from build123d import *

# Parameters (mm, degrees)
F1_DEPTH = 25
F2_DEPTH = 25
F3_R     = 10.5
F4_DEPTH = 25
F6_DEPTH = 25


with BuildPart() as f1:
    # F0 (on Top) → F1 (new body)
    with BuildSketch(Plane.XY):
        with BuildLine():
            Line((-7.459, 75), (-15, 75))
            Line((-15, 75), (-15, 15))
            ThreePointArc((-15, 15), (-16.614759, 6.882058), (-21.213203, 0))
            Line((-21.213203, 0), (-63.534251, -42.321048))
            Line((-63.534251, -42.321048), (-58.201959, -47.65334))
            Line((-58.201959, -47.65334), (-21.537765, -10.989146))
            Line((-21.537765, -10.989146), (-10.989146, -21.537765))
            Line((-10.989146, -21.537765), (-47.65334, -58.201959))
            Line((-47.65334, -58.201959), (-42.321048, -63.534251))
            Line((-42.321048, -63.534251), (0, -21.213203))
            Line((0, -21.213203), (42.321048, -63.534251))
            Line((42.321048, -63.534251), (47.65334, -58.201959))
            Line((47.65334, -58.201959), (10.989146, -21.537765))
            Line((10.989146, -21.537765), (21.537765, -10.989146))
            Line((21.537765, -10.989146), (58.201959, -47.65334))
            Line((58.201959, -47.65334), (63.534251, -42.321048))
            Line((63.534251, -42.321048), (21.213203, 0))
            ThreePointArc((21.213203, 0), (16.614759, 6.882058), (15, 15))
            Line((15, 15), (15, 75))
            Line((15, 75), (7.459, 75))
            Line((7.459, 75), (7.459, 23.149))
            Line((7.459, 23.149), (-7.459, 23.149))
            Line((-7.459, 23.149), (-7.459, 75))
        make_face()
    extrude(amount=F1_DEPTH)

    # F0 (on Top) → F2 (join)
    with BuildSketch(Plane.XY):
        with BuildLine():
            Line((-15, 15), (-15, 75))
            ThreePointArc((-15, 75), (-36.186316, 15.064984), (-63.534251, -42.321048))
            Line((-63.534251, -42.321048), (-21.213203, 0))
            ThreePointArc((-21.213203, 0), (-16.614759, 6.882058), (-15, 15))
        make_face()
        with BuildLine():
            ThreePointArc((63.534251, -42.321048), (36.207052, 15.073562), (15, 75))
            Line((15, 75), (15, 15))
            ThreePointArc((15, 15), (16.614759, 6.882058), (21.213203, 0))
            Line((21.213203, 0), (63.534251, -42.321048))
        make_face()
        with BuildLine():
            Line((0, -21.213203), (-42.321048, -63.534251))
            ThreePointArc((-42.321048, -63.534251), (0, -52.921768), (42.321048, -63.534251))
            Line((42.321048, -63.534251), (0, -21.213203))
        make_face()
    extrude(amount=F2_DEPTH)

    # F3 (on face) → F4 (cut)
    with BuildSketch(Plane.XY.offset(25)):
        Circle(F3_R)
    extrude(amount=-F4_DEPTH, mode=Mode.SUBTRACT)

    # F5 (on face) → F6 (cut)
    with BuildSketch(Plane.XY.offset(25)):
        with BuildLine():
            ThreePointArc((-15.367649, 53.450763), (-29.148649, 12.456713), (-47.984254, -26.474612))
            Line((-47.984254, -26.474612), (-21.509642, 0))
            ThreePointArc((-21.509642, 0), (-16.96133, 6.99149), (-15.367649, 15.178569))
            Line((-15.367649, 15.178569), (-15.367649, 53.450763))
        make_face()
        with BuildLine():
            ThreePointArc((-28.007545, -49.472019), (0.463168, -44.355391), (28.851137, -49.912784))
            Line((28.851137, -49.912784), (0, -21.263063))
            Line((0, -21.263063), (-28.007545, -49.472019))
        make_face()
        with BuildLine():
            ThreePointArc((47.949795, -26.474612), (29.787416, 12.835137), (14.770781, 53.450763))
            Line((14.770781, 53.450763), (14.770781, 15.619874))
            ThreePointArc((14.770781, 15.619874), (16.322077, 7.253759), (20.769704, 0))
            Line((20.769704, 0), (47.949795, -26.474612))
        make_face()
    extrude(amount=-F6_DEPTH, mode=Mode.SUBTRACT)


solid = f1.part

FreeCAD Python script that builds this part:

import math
import FreeCAD as App
import Part
import Sketcher
from FreeCAD import Vector
Q = App.Units.Quantity

doc = App.newDocument("Part")
params = doc.addObject("Spreadsheet::Sheet", "Params")
for row, (alias, value) in enumerate([
    ("sketch1_height", "60 mm"),
    ("pad1_length", "25 mm"),
    ("sketch2_height", "60 mm"),
    ("pad2_length", "25 mm"),
    ("sketch3_diameter", "21 mm"),
    ("pocket1_length", "25 mm"),
    ("pocket2_length", "25 mm"),
], start=1):
    params.set(f"A{row}", alias)
    params.set(f"B{row}", "=" + value)
    params.setAlias(f"B{row}", alias)

body = doc.addObject("PartDesign::Body", "Body")

sketch1 = body.newObject("Sketcher::SketchObject", "Sketch")
sketch1.AttachmentSupport = (doc.getObject("XY_Plane"), [""])
sketch1.MapMode = "FlatFace"
sketch1.addGeometry([
    Part.LineSegment(Vector(-7, 75, 0), Vector(-15, 75, 0)),
    Part.LineSegment(Vector(-15, 75, 0), Vector(-15, 15, 0)),
    Part.ArcOfCircle(Part.Circle(Vector(-36, 15, 0), Vector(0, 0, 1), 21), math.radians(-45), math.radians(0)),
    Part.LineSegment(Vector(-21, 0, 0), Vector(-64, -42, 0)),
    Part.LineSegment(Vector(-64, -42, 0), Vector(-58, -48, 0)),
    Part.LineSegment(Vector(-58, -48, 0), Vector(-22, -11, 0)),
    Part.LineSegment(Vector(-22, -11, 0), Vector(-11, -22, 0)),
    Part.LineSegment(Vector(-11, -22, 0), Vector(-48, -58, 0)),
    Part.LineSegment(Vector(-48, -58, 0), Vector(-42, -64, 0)),
    Part.LineSegment(Vector(-42, -64, 0), Vector(0, -21, 0)),
    Part.LineSegment(Vector(0, -21, 0), Vector(42, -64, 0)),
    Part.LineSegment(Vector(42, -64, 0), Vector(48, -58, 0)),
    Part.LineSegment(Vector(48, -58, 0), Vector(11, -22, 0)),
    Part.LineSegment(Vector(11, -22, 0), Vector(22, -11, 0)),
    Part.LineSegment(Vector(22, -11, 0), Vector(58, -48, 0)),
    Part.LineSegment(Vector(58, -48, 0), Vector(64, -42, 0)),
    Part.LineSegment(Vector(64, -42, 0), Vector(21, 0, 0)),
    Part.ArcOfCircle(Part.Circle(Vector(36, 15, 0), Vector(0, 0, 1), 21), math.radians(180), math.radians(225)),
    Part.LineSegment(Vector(15, 15, 0), Vector(15, 75, 0)),
    Part.LineSegment(Vector(15, 75, 0), Vector(7, 75, 0)),
    Part.LineSegment(Vector(7, 75, 0), Vector(7, 23, 0)),
    Part.LineSegment(Vector(7, 23, 0), Vector(-7, 23, 0)),
    Part.LineSegment(Vector(-7, 23, 0), Vector(-7, 75, 0)),
], False)
sketch1.addConstraint([
    Sketcher.Constraint("Coincident", 0, 2, 1, 1),
    Sketcher.Constraint("Tangent", 1, 2, 2, 2),
    Sketcher.Constraint("Tangent", 2, 1, 3, 1),
    Sketcher.Constraint("Coincident", 3, 2, 4, 1),
    Sketcher.Constraint("Coincident", 4, 2, 5, 1),
    Sketcher.Constraint("Coincident", 5, 2, 6, 1),
    Sketcher.Constraint("Coincident", 6, 2, 7, 1),
    Sketcher.Constraint("Coincident", 7, 2, 8, 1),
    Sketcher.Constraint("Coincident", 8, 2, 9, 1),
    Sketcher.Constraint("Coincident", 9, 2, 10, 1),
    Sketcher.Constraint("Coincident", 10, 2, 11, 1),
    Sketcher.Constraint("Coincident", 11, 2, 12, 1),
    Sketcher.Constraint("Coincident", 12, 2, 13, 1),
    Sketcher.Constraint("Coincident", 13, 2, 14, 1),
    Sketcher.Constraint("Coincident", 14, 2, 15, 1),
    Sketcher.Constraint("Coincident", 15, 2, 16, 1),
    Sketcher.Constraint("Tangent", 16, 2, 17, 2),
    Sketcher.Constraint("Tangent", 17, 1, 18, 1),
    Sketcher.Constraint("Coincident", 18, 2, 19, 1),
    Sketcher.Constraint("Coincident", 19, 2, 20, 1),
    Sketcher.Constraint("Coincident", 20, 2, 21, 1),
    Sketcher.Constraint("Coincident", 21, 2, 22, 1),
    Sketcher.Constraint("Coincident", 22, 2, 0, 1),
    Sketcher.Constraint("Horizontal", 0),
    Sketcher.Constraint("Vertical", 1),
    Sketcher.Constraint("Vertical", 18),
    Sketcher.Constraint("Horizontal", 19),
    Sketcher.Constraint("Vertical", 20),
    Sketcher.Constraint("Horizontal", 21),
    Sketcher.Constraint("Vertical", 22),
    Sketcher.Constraint("Equal", 2, 17),
    Sketcher.Constraint("Symmetric", 2, 1, 16, 2, -1, 1),
    Sketcher.Constraint("Symmetric", 2, 3, 17, 3, -2),
    Sketcher.Constraint("Symmetric", 8, 2, 10, 2, -2),
    Sketcher.Constraint("Symmetric", 7, 2, 11, 2, -2),
    Sketcher.Constraint("Symmetric", 6, 2, 12, 2, -2),
    Sketcher.Constraint("Symmetric", 5, 2, 13, 2, -2),
    Sketcher.Constraint("Symmetric", 4, 2, 14, 2, -2),
    Sketcher.Constraint("Symmetric", 19, 2, 22, 2, -2),
    Sketcher.Constraint("PointOnObject", 9, 2, -2),
    Sketcher.Constraint("Perpendicular", 3, 4),
    Sketcher.Constraint("Perpendicular", 4, 5),
    Sketcher.Constraint("Perpendicular", 5, 6),
    Sketcher.Constraint("Perpendicular", 6, 7),
    Sketcher.Constraint("Perpendicular", 7, 8),
    Sketcher.Constraint("Perpendicular", 8, 9),
    Sketcher.Constraint("Perpendicular", 9, 10),
    Sketcher.Constraint("Perpendicular", 14, 15),
    Sketcher.Constraint("Equal", 5, 7),
    Sketcher.Constraint("Equal", 4, 8),
    Sketcher.Constraint("Equal", 3, 9),
    Sketcher.Constraint("DistanceY", 1, 2, 1, 1, 60.0),
    Sketcher.Constraint("DistanceY", -1, 1, 2, 3, 15.0),
    Sketcher.Constraint("DistanceX", 0, 2, -1, 1, 15.0),
    Sketcher.Constraint("DistanceX", 0, 2, 0, 1, 7.541),
    Sketcher.Constraint("DistanceY", 20, 2, 20, 1, 51.851),
    Sketcher.Constraint("Distance", 3, 59.851),
    Sketcher.Constraint("Distance", 4, 7.541),
    Sketcher.Constraint("Distance", 5, 51.851),
])
sketch1.setExpression("Constraints[51]", "Params.sketch1_height")
pad1 = body.newObject("PartDesign::Pad", "Pad")
pad1.Profile = sketch1
pad1.setExpression("Length", "Params.pad1_length")

sketch2 = body.newObject("Sketcher::SketchObject", "Sketch001")
sketch2.AttachmentSupport = (doc.getObject("XY_Plane"), [""])
sketch2.MapMode = "FlatFace"
sketch2.addGeometry([
    Part.LineSegment(Vector(-15, 15, 0), Vector(-15, 75, 0)),
    Part.ArcOfCircle(Part.Circle(Vector(-596, 247, 0), Vector(0, 0, 1), 606), math.radians(-28.49), math.radians(-16.46)),
    Part.LineSegment(Vector(-64, -42, 0), Vector(-21, 0, 0)),
    Part.ArcOfCircle(Part.Circle(Vector(-36, 15, 0), Vector(0, 0, 1), 21), math.radians(-45), math.radians(0)),
    Part.ArcOfCircle(Part.Circle(Vector(600, 248, 0), Vector(0, 0, 1), 610), math.radians(-163.5), math.radians(-151.55)),
    Part.LineSegment(Vector(15, 75, 0), Vector(15, 15, 0)),
    Part.ArcOfCircle(Part.Circle(Vector(36, 15, 0), Vector(0, 0, 1), 21), math.radians(180), math.radians(225)),
    Part.LineSegment(Vector(21, 0, 0), Vector(64, -42, 0)),
    Part.LineSegment(Vector(0, -21, 0), Vector(-42, -64, 0)),
    Part.ArcOfCircle(Part.Circle(Vector(0, -143, 0), Vector(0, 0, 1), 90), math.radians(62), math.radians(118)),
    Part.LineSegment(Vector(42, -64, 0), Vector(0, -21, 0)),
], False)
sketch2.addConstraint([
    Sketcher.Constraint("Coincident", 0, 2, 1, 2),
    Sketcher.Constraint("Coincident", 1, 1, 2, 1),
    Sketcher.Constraint("Tangent", 2, 2, 3, 1),
    Sketcher.Constraint("Tangent", 3, 2, 0, 1),
    Sketcher.Constraint("Coincident", 4, 1, 5, 1),
    Sketcher.Constraint("Tangent", 5, 2, 6, 1),
    Sketcher.Constraint("Tangent", 6, 2, 7, 1),
    Sketcher.Constraint("Coincident", 7, 2, 4, 2),
    Sketcher.Constraint("Coincident", 8, 2, 9, 2),
    Sketcher.Constraint("Coincident", 9, 1, 10, 1),
    Sketcher.Constraint("Coincident", 10, 2, 8, 1),
    Sketcher.Constraint("Vertical", 0),
    Sketcher.Constraint("Vertical", 5),
    Sketcher.Constraint("Equal", 3, 6),
    Sketcher.Constraint("Symmetric", 2, 2, 6, 2, -1, 1),
    Sketcher.Constraint("Symmetric", 3, 3, 6, 3, -2),
    Sketcher.Constraint("Symmetric", 8, 2, 9, 1, -2),
    Sketcher.Constraint("PointOnObject", 10, 2, -2),
    Sketcher.Constraint("Perpendicular", 2, 7),
    Sketcher.Constraint("Perpendicular", 7, 8),
    Sketcher.Constraint("Equal", 0, 5),
    Sketcher.Constraint("Equal", 2, 7),
    Sketcher.Constraint("Equal", 7, 8),
    Sketcher.Constraint("DistanceY", 0, 1, 0, 2, 60.0),
    Sketcher.Constraint("DistanceY", -1, 1, 3, 3, 15.0),
    Sketcher.Constraint("DistanceX", 0, 2, -1, 1, 15.0),
    Sketcher.Constraint("Radius", 1, 606.034328),
    Sketcher.Constraint("Radius", 4, 610.118472),
    Sketcher.Constraint("Distance", 2, 59.851),
    Sketcher.Constraint("Radius", 9, 89.691352),
    Sketcher.Constraint("DistanceY", 9, 3, -1, 1, 142.61312),
])
sketch2.setExpression("Constraints[23]", "Params.sketch2_height")
pad2 = body.newObject("PartDesign::Pad", "Pad001")
pad2.Profile = sketch2
pad2.setExpression("Length", "Params.pad2_length")

sketch3 = body.newObject("Sketcher::SketchObject", "Sketch002")
sketch3.AttachmentSupport = (doc.getObject("XY_Plane"), [""])
sketch3.MapMode = "FlatFace"
sketch3.AttachmentOffset = App.Placement(Vector(0, 0, 25), App.Rotation())
sketch3.addGeometry(Part.Circle(Vector(0, 0, 0), Vector(0, 0, 1), 10), False)
sketch3.addConstraint([
    Sketcher.Constraint("Coincident", 0, 3, -1, 1),
    Sketcher.Constraint("Diameter", 0, 21.0),
])
sketch3.setExpression("Constraints[1]", "Params.sketch3_diameter")
pocket1 = body.newObject("PartDesign::Pocket", "Pocket")
pocket1.Profile = sketch3
pocket1.setExpression("Length", "Params.pocket1_length")

sketch4 = body.newObject("Sketcher::SketchObject", "Sketch003")
sketch4.AttachmentSupport = (doc.getObject("XY_Plane"), [""])
sketch4.MapMode = "FlatFace"
sketch4.AttachmentOffset = App.Placement(Vector(0, 0, 25), App.Rotation())
sketch4.addGeometry([
    Part.ArcOfCircle(Part.Circle(Vector(-346, 142, 0), Vector(0, 0, 1), 343), math.radians(-29.44), math.radians(-14.96)),
    Part.LineSegment(Vector(-48, -26, 0), Vector(-22, 0, 0)),
    Part.ArcOfCircle(Part.Circle(Vector(-37, 15, 0), Vector(0, 0, 1), 22), math.radians(-44), math.radians(0)),
    Part.LineSegment(Vector(-15, 15, 0), Vector(-15, 53, 0)),
    Part.ArcOfCircle(Part.Circle(Vector(0, -123, 0), Vector(0, 0, 1), 78), math.radians(68), math.radians(111)),
    Part.LineSegment(Vector(29, -50, 0), Vector(0, -21, 0)),
    Part.LineSegment(Vector(0, -21, 0), Vector(-28, -49, 0)),
    Part.ArcOfCircle(Part.Circle(Vector(538, 224, 0), Vector(0, 0, 1), 551), math.radians(-161.96), math.radians(-152.95)),
    Part.LineSegment(Vector(15, 53, 0), Vector(15, 16, 0)),
    Part.ArcOfCircle(Part.Circle(Vector(38, 16, 0), Vector(0, 0, 1), 23), math.radians(-180), math.radians(-138)),
    Part.LineSegment(Vector(21, 0, 0), Vector(48, -26, 0)),
], False)
sketch4.addConstraint([
    Sketcher.Constraint("Coincident", 0, 1, 1, 1),
    Sketcher.Constraint("Coincident", 1, 2, 2, 1),
    Sketcher.Constraint("Tangent", 2, 2, 3, 1),
    Sketcher.Constraint("Coincident", 3, 2, 0, 2),
    Sketcher.Constraint("Coincident", 4, 1, 5, 1),
    Sketcher.Constraint("Coincident", 5, 2, 6, 1),
    Sketcher.Constraint("Coincident", 6, 2, 4, 2),
    Sketcher.Constraint("Coincident", 7, 1, 8, 1),
    Sketcher.Constraint("Tangent", 8, 2, 9, 1),
    Sketcher.Constraint("Coincident", 9, 2, 10, 1),
    Sketcher.Constraint("Coincident", 10, 2, 7, 2),
    Sketcher.Constraint("Vertical", 3),
    Sketcher.Constraint("Vertical", 8),
    Sketcher.Constraint("PointOnObject", 1, 2, -1),
    Sketcher.Constraint("PointOnObject", 5, 2, -2),
    Sketcher.Constraint("PointOnObject", 9, 2, -1),
    Sketcher.Constraint("Horizontal", 3, 2, 7, 1),
    Sketcher.Constraint("Horizontal", 0, 1, 10, 2),
    Sketcher.Constraint("Angle", 1, Q("45 deg")),
    Sketcher.Constraint("Radius", 0, 342.613691),
    Sketcher.Constraint("Radius", 2, 21.826223),
    Sketcher.Constraint("Radius", 4, 78.389976),
    Sketcher.Constraint("Radius", 7, 550.532447),
    Sketcher.Constraint("Radius", 9, 23.334822),
    Sketcher.Constraint("DistanceY", 8, 2, 8, 1, 37.830889),
    Sketcher.Constraint("DistanceY", 4, 3, 0, 1, 96.2684),
    Sketcher.Constraint("DistanceX", 0, 3, 0, 1, 298.380801),
    Sketcher.Constraint("DistanceX", 9, 2, 9, 3, 17.335899),
    Sketcher.Constraint("DistanceY", 3, 1, 3, 2, 38.272194),
    Sketcher.Constraint("DistanceX", -1, 1, 7, 3, 538.249091),
    Sketcher.Constraint("DistanceX", 1, 2, -1, 1, 21.509642),
    Sketcher.Constraint("DistanceY", 6, 2, -1, 1, 49.472019),
    Sketcher.Constraint("DistanceX", -1, 1, 8, 2, 14.770781),
    Sketcher.Constraint("DistanceX", 4, 3, 7, 3, 538.393579),
    Sketcher.Constraint("DistanceY", 4, 1, 9, 3, 65.53266),
    Sketcher.Constraint("DistanceY", 5, 2, 2, 2, 36.441632),
])
pocket2 = body.newObject("PartDesign::Pocket", "Pocket001")
pocket2.Profile = sketch4
pocket2.setExpression("Length", "Params.pocket2_length")

doc.recompute()
